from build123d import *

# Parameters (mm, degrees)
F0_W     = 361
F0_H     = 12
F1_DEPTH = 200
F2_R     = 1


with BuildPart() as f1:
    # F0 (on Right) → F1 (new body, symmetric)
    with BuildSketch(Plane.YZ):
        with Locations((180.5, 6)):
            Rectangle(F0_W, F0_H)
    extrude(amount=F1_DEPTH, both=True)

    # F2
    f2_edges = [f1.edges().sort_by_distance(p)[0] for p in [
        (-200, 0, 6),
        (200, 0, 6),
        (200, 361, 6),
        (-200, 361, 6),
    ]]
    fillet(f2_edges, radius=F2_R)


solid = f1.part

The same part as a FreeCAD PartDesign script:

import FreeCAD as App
import Part
import Sketcher
Q = App.Units.Quantity


def edges_at(feature, points):
    """Names of the edges that pass closest to the given points."""
    edges = feature.Shape.Edges
    near = lambda p: min(range(len(edges)), key=lambda i: edges[i].distToShape(Part.Vertex(*p))[0])
    return sorted({f"Edge{near(p) + 1}" for p in points})


def add_polygon(sketch, points):
    """Adds a closed chain of lines whose ends are joined by coincident constraints."""
    first, n = sketch.GeometryCount, len(points)
    for a, b in zip(points, points[1:] + points[:1]):
        sketch.addGeometry(Part.LineSegment(App.Vector(*a, 0), App.Vector(*b, 0)), False)
    for i in range(n):
        sketch.addConstraint(Sketcher.Constraint("Coincident", first + i, 2, first + (i + 1) % n, 1))

doc = App.newDocument("Part")
body = doc.addObject("PartDesign::Body", "Body")

# Sketch on YZ plane
sketch1 = body.newObject("Sketcher::SketchObject", "Sketch")
sketch1.AttachmentSupport = (doc.getObject("YZ_Plane"), [""])
sketch1.MapMode = "FlatFace"
add_polygon(sketch1, [(0, 12), (0, 0), (361, 0), (361, 12)])  # lines 0-3
sketch1.addConstraint([
    Sketcher.Constraint("Vertical", 0),
    Sketcher.Constraint("Horizontal", 1),
    Sketcher.Constraint("Vertical", 2),
    Sketcher.Constraint("Horizontal", 3),
    Sketcher.Constraint("Coincident", 0, 2, -1, 1),
    Sketcher.Constraint("DistanceX", 1, 1, 1, 2, Q("361 mm")),
    Sketcher.Constraint("DistanceY", 0, 2, 0, 1, Q("12 mm")),
])
pad1 = body.newObject("PartDesign::Pad", "Pad")
pad1.Profile = sketch1
pad1.Length = 400
pad1.Midplane = True
doc.recompute()

fillet = body.newObject("PartDesign::Fillet", "Fillet")
fillet.Base = (pad1, edges_at(pad1, [
    (-200, 0, 6),
    (200, 0, 6),
    (200, 361, 6),
    (-200, 361, 6),
]))
fillet.Radius = 1

doc.recompute()
